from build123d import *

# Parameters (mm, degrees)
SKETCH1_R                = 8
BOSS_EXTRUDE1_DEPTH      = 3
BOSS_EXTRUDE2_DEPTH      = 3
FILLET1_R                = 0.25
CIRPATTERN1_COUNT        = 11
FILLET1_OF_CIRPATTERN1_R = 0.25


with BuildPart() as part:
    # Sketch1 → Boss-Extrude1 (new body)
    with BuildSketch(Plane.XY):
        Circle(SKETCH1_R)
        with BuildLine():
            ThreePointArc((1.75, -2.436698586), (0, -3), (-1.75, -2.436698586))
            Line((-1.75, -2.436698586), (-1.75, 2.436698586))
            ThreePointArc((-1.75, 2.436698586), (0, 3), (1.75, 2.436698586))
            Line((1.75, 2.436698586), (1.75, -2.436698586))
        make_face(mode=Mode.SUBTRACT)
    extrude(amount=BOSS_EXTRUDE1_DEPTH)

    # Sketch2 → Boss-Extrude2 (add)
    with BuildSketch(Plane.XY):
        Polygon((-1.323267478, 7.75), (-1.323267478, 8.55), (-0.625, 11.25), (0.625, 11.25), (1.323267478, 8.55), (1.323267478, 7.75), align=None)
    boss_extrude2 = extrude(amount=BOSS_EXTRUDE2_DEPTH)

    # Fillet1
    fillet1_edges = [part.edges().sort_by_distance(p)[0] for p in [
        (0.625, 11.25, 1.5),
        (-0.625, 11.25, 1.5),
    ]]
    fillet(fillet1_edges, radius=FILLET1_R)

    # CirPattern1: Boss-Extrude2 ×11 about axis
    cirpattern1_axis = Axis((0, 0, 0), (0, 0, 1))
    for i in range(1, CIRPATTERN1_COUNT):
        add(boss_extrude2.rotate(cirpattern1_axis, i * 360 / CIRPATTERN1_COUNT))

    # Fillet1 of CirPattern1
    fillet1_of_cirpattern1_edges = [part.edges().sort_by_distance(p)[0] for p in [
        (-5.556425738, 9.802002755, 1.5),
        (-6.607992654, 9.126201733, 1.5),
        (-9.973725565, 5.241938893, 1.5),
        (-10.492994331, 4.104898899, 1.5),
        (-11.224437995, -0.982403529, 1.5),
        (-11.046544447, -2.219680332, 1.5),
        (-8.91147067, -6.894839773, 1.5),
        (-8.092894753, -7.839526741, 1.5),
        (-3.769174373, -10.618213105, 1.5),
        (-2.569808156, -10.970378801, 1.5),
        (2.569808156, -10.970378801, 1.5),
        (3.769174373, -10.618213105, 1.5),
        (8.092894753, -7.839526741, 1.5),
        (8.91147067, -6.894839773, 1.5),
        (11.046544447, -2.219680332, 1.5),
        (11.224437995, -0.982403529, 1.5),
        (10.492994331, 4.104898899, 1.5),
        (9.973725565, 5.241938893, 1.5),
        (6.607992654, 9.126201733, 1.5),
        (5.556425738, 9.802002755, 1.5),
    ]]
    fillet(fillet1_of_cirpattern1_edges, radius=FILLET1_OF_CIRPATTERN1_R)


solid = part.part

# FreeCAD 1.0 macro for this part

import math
import FreeCAD as App
import Part
import Sketcher
Q = App.Units.Quantity


def edges_at(feature, points):
    """Names of the edges that pass closest to the given points."""
    edges = feature.Shape.Edges
    near = lambda p: min(range(len(edges)), key=lambda i: edges[i].distToShape(Part.Vertex(*p))[0])
    return sorted({f"Edge{near(p) + 1}" for p in points})

doc = App.newDocument("Part")
body = doc.addObject("PartDesign::Body", "Body")

sketch1 = doc.addObject("Sketcher::SketchObject", "Sketch")
body.addObject(sketch1)
sketch1.AttachmentSupport = (doc.XY_Plane, [""])
sketch1.MapMode = "FlatFace"
sketch1.addGeometry(Part.Circle(App.Vector(0, 0, 0), App.Vector(0, 0, 1), 8), False)
sketch1.addGeometry(Part.LineSegment(App.Vector(1.75, 2.436699, 0), App.Vector(1.75, -2.436699, 0)), False)
sketch1.addGeometry(Part.ArcOfCircle(Part.Circle(App.Vector(0, 0, 0), App.Vector(0, 0, 1), 3), math.radians(-125.685335), math.radians(-54.314665)), False)
sketch1.addGeometry(Part.LineSegment(App.Vector(-1.75, -2.436699, 0), App.Vector(-1.75, 2.436699, 0)), False)
sketch1.addGeometry(Part.ArcOfCircle(Part.Circle(App.Vector(0, 0, 0), App.Vector(0, 0, 1), 3), math.radians(54.314665), math.radians(125.685335)), False)
sketch1.addConstraint(Sketcher.Constraint("Coincident", 1, 2, 2, 2))
sketch1.addConstraint(Sketcher.Constraint("Coincident", 2, 1, 3, 1))
sketch1.addConstraint(Sketcher.Constraint("Coincident", 3, 2, 4, 2))
sketch1.addConstraint(Sketcher.Constraint("Coincident", 4, 1, 1, 1))
sketch1.addConstraint(Sketcher.Constraint("Vertical", 1))
sketch1.addConstraint(Sketcher.Constraint("Vertical", 3))
sketch1.addConstraint(Sketcher.Constraint("Coincident", 0, 3, -1, 1))
sketch1.addConstraint(Sketcher.Constraint("Coincident", 2, 3, -1, 1))
sketch1.addConstraint(Sketcher.Constraint("Coincident", 4, 3, -1, 1))
sketch1.addConstraint(Sketcher.Constraint("Equal", 2, 4))
sketch1.addConstraint(Sketcher.Constraint("Horizontal", 1, 2, 2, 1))
sketch1.addConstraint(Sketcher.Constraint("Diameter", 0, 16.0))
sketch1.addConstraint(Sketcher.Constraint("Radius", 2, 3.0))
sketch1.addConstraint(Sketcher.Constraint("DistanceX", 2, 1, 1, 2, 3.5))
pad1 = doc.addObject("PartDesign::Pad", "Pad")
body.addObject(pad1)
pad1.Profile = sketch1
pad1.Length = 3

sketch2 = doc.addObject("Sketcher::SketchObject", "Sketch001")
body.addObject(sketch2)
sketch2.AttachmentSupport = (doc.XY_Plane, [""])
sketch2.MapMode = "FlatFace"
sketch2.addGeometry(Part.LineSegment(App.Vector(-1.323267, 8.55, 0), App.Vector(-1.323267, 7.75, 0)), False)
sketch2.addGeometry(Part.LineSegment(App.Vector(-1.323267, 7.75, 0), App.Vector(1.323267, 7.75, 0)), False)
sketch2.addGeometry(Part.LineSegment(App.Vector(1.323267, 7.75, 0), App.Vector(1.323267, 8.55, 0)), False)
sketch2.addGeometry(Part.LineSegment(App.Vector(1.323267, 8.55, 0), App.Vector(0.625, 11.25, 0)), False)
sketch2.addGeometry(Part.LineSegment(App.Vector(0.625, 11.25, 0), App.Vector(-0.625, 11.25, 0)), False)
sketch2.addGeometry(Part.LineSegment(App.Vector(-0.625, 11.25, 0), App.Vector(-1.323267, 8.55, 0)), False)
sketch2.addConstraint(Sketcher.Constraint("Coincident", 0, 2, 1, 1))
sketch2.addConstraint(Sketcher.Constraint("Coincident", 1, 2, 2, 1))
sketch2.addConstraint(Sketcher.Constraint("Coincident", 2, 2, 3, 1))
sketch2.addConstraint(Sketcher.Constraint("Coincident", 3, 2, 4, 1))
sketch2.addConstraint(Sketcher.Constraint("Coincident", 4, 2, 5, 1))
sketch2.addConstraint(Sketcher.Constraint("Coincident", 5, 2, 0, 1))
sketch2.addConstraint(Sketcher.Constraint("Vertical", 0))
sketch2.addConstraint(Sketcher.Constraint("Horizontal", 1))
sketch2.addConstraint(Sketcher.Constraint("Vertical", 2))
sketch2.addConstraint(Sketcher.Constraint("Horizontal", 4))
sketch2.addConstraint(Sketcher.Constraint("Symmetric", 2, 2, 5, 2, -2))
sketch2.addConstraint(Sketcher.Constraint("Equal", 3, 5))
sketch2.addConstraint(Sketcher.Constraint("DistanceY", 0, 2, 0, 1, 0.8))
sketch2.addConstraint(Sketcher.Constraint("Angle", 3, Q("104.5 deg")))
sketch2.addConstraint(Sketcher.Constraint("DistanceX", 4, 2, 4, 1, 1.25))
sketch2.addConstraint(Sketcher.Constraint("DistanceY", 2, 2, 3, 2, 2.7))
sketch2.addConstraint(Sketcher.Constraint("DistanceY", -1, 1, 0, 2, 7.75))
pad2 = doc.addObject("PartDesign::Pad", "Pad001")
body.addObject(pad2)
pad2.Profile = sketch2
pad2.Length = 3
doc.recompute()

fillet = doc.addObject("PartDesign::Fillet", "Fillet")
body.addObject(fillet)
fillet.Base = (pad2, edges_at(pad2, [(0.625, 11.25, 1.5), (-0.625, 11.25, 1.5)]))
fillet.Radius = 0.25
doc.recompute()

polarpattern = doc.addObject("PartDesign::PolarPattern", "PolarPattern")
body.addObject(polarpattern)
polarpattern.Originals = [pad2]
polarpattern.Axis = (doc.Z_Axis, [""])
polarpattern.Angle = 360
polarpattern.Occurrences = 11
body.Tip = polarpattern
doc.recompute()

fillet2 = doc.addObject("PartDesign::Fillet", "Fillet001")
body.addObject(fillet2)
fillet2.Base = (polarpattern, edges_at(polarpattern, [
    (-5.556, 9.802, 1.5),
    (-6.608, 9.126, 1.5),
    (-9.974, 5.242, 1.5),
    (-10.493, 4.105, 1.5),
    (-11.224, -0.982, 1.5),
    (-11.047, -2.22, 1.5),
    (-8.911, -6.895, 1.5),
    (-8.093, -7.84, 1.5),
    (-3.769, -10.618, 1.5),
    (-2.57, -10.97, 1.5),
    (2.57, -10.97, 1.5),
    (3.769, -10.618, 1.5),
    (8.093, -7.84, 1.5),
    (8.911, -6.895, 1.5),
    (11.047, -2.22, 1.5),
    (11.224, -0.982, 1.5),
    (10.493, 4.105, 1.5),
    (9.974, 5.242, 1.5),
    (6.608, 9.126, 1.5),
    (5.556, 9.802, 1.5),
]))
fillet2.Radius = 0.25

doc.recompute()
